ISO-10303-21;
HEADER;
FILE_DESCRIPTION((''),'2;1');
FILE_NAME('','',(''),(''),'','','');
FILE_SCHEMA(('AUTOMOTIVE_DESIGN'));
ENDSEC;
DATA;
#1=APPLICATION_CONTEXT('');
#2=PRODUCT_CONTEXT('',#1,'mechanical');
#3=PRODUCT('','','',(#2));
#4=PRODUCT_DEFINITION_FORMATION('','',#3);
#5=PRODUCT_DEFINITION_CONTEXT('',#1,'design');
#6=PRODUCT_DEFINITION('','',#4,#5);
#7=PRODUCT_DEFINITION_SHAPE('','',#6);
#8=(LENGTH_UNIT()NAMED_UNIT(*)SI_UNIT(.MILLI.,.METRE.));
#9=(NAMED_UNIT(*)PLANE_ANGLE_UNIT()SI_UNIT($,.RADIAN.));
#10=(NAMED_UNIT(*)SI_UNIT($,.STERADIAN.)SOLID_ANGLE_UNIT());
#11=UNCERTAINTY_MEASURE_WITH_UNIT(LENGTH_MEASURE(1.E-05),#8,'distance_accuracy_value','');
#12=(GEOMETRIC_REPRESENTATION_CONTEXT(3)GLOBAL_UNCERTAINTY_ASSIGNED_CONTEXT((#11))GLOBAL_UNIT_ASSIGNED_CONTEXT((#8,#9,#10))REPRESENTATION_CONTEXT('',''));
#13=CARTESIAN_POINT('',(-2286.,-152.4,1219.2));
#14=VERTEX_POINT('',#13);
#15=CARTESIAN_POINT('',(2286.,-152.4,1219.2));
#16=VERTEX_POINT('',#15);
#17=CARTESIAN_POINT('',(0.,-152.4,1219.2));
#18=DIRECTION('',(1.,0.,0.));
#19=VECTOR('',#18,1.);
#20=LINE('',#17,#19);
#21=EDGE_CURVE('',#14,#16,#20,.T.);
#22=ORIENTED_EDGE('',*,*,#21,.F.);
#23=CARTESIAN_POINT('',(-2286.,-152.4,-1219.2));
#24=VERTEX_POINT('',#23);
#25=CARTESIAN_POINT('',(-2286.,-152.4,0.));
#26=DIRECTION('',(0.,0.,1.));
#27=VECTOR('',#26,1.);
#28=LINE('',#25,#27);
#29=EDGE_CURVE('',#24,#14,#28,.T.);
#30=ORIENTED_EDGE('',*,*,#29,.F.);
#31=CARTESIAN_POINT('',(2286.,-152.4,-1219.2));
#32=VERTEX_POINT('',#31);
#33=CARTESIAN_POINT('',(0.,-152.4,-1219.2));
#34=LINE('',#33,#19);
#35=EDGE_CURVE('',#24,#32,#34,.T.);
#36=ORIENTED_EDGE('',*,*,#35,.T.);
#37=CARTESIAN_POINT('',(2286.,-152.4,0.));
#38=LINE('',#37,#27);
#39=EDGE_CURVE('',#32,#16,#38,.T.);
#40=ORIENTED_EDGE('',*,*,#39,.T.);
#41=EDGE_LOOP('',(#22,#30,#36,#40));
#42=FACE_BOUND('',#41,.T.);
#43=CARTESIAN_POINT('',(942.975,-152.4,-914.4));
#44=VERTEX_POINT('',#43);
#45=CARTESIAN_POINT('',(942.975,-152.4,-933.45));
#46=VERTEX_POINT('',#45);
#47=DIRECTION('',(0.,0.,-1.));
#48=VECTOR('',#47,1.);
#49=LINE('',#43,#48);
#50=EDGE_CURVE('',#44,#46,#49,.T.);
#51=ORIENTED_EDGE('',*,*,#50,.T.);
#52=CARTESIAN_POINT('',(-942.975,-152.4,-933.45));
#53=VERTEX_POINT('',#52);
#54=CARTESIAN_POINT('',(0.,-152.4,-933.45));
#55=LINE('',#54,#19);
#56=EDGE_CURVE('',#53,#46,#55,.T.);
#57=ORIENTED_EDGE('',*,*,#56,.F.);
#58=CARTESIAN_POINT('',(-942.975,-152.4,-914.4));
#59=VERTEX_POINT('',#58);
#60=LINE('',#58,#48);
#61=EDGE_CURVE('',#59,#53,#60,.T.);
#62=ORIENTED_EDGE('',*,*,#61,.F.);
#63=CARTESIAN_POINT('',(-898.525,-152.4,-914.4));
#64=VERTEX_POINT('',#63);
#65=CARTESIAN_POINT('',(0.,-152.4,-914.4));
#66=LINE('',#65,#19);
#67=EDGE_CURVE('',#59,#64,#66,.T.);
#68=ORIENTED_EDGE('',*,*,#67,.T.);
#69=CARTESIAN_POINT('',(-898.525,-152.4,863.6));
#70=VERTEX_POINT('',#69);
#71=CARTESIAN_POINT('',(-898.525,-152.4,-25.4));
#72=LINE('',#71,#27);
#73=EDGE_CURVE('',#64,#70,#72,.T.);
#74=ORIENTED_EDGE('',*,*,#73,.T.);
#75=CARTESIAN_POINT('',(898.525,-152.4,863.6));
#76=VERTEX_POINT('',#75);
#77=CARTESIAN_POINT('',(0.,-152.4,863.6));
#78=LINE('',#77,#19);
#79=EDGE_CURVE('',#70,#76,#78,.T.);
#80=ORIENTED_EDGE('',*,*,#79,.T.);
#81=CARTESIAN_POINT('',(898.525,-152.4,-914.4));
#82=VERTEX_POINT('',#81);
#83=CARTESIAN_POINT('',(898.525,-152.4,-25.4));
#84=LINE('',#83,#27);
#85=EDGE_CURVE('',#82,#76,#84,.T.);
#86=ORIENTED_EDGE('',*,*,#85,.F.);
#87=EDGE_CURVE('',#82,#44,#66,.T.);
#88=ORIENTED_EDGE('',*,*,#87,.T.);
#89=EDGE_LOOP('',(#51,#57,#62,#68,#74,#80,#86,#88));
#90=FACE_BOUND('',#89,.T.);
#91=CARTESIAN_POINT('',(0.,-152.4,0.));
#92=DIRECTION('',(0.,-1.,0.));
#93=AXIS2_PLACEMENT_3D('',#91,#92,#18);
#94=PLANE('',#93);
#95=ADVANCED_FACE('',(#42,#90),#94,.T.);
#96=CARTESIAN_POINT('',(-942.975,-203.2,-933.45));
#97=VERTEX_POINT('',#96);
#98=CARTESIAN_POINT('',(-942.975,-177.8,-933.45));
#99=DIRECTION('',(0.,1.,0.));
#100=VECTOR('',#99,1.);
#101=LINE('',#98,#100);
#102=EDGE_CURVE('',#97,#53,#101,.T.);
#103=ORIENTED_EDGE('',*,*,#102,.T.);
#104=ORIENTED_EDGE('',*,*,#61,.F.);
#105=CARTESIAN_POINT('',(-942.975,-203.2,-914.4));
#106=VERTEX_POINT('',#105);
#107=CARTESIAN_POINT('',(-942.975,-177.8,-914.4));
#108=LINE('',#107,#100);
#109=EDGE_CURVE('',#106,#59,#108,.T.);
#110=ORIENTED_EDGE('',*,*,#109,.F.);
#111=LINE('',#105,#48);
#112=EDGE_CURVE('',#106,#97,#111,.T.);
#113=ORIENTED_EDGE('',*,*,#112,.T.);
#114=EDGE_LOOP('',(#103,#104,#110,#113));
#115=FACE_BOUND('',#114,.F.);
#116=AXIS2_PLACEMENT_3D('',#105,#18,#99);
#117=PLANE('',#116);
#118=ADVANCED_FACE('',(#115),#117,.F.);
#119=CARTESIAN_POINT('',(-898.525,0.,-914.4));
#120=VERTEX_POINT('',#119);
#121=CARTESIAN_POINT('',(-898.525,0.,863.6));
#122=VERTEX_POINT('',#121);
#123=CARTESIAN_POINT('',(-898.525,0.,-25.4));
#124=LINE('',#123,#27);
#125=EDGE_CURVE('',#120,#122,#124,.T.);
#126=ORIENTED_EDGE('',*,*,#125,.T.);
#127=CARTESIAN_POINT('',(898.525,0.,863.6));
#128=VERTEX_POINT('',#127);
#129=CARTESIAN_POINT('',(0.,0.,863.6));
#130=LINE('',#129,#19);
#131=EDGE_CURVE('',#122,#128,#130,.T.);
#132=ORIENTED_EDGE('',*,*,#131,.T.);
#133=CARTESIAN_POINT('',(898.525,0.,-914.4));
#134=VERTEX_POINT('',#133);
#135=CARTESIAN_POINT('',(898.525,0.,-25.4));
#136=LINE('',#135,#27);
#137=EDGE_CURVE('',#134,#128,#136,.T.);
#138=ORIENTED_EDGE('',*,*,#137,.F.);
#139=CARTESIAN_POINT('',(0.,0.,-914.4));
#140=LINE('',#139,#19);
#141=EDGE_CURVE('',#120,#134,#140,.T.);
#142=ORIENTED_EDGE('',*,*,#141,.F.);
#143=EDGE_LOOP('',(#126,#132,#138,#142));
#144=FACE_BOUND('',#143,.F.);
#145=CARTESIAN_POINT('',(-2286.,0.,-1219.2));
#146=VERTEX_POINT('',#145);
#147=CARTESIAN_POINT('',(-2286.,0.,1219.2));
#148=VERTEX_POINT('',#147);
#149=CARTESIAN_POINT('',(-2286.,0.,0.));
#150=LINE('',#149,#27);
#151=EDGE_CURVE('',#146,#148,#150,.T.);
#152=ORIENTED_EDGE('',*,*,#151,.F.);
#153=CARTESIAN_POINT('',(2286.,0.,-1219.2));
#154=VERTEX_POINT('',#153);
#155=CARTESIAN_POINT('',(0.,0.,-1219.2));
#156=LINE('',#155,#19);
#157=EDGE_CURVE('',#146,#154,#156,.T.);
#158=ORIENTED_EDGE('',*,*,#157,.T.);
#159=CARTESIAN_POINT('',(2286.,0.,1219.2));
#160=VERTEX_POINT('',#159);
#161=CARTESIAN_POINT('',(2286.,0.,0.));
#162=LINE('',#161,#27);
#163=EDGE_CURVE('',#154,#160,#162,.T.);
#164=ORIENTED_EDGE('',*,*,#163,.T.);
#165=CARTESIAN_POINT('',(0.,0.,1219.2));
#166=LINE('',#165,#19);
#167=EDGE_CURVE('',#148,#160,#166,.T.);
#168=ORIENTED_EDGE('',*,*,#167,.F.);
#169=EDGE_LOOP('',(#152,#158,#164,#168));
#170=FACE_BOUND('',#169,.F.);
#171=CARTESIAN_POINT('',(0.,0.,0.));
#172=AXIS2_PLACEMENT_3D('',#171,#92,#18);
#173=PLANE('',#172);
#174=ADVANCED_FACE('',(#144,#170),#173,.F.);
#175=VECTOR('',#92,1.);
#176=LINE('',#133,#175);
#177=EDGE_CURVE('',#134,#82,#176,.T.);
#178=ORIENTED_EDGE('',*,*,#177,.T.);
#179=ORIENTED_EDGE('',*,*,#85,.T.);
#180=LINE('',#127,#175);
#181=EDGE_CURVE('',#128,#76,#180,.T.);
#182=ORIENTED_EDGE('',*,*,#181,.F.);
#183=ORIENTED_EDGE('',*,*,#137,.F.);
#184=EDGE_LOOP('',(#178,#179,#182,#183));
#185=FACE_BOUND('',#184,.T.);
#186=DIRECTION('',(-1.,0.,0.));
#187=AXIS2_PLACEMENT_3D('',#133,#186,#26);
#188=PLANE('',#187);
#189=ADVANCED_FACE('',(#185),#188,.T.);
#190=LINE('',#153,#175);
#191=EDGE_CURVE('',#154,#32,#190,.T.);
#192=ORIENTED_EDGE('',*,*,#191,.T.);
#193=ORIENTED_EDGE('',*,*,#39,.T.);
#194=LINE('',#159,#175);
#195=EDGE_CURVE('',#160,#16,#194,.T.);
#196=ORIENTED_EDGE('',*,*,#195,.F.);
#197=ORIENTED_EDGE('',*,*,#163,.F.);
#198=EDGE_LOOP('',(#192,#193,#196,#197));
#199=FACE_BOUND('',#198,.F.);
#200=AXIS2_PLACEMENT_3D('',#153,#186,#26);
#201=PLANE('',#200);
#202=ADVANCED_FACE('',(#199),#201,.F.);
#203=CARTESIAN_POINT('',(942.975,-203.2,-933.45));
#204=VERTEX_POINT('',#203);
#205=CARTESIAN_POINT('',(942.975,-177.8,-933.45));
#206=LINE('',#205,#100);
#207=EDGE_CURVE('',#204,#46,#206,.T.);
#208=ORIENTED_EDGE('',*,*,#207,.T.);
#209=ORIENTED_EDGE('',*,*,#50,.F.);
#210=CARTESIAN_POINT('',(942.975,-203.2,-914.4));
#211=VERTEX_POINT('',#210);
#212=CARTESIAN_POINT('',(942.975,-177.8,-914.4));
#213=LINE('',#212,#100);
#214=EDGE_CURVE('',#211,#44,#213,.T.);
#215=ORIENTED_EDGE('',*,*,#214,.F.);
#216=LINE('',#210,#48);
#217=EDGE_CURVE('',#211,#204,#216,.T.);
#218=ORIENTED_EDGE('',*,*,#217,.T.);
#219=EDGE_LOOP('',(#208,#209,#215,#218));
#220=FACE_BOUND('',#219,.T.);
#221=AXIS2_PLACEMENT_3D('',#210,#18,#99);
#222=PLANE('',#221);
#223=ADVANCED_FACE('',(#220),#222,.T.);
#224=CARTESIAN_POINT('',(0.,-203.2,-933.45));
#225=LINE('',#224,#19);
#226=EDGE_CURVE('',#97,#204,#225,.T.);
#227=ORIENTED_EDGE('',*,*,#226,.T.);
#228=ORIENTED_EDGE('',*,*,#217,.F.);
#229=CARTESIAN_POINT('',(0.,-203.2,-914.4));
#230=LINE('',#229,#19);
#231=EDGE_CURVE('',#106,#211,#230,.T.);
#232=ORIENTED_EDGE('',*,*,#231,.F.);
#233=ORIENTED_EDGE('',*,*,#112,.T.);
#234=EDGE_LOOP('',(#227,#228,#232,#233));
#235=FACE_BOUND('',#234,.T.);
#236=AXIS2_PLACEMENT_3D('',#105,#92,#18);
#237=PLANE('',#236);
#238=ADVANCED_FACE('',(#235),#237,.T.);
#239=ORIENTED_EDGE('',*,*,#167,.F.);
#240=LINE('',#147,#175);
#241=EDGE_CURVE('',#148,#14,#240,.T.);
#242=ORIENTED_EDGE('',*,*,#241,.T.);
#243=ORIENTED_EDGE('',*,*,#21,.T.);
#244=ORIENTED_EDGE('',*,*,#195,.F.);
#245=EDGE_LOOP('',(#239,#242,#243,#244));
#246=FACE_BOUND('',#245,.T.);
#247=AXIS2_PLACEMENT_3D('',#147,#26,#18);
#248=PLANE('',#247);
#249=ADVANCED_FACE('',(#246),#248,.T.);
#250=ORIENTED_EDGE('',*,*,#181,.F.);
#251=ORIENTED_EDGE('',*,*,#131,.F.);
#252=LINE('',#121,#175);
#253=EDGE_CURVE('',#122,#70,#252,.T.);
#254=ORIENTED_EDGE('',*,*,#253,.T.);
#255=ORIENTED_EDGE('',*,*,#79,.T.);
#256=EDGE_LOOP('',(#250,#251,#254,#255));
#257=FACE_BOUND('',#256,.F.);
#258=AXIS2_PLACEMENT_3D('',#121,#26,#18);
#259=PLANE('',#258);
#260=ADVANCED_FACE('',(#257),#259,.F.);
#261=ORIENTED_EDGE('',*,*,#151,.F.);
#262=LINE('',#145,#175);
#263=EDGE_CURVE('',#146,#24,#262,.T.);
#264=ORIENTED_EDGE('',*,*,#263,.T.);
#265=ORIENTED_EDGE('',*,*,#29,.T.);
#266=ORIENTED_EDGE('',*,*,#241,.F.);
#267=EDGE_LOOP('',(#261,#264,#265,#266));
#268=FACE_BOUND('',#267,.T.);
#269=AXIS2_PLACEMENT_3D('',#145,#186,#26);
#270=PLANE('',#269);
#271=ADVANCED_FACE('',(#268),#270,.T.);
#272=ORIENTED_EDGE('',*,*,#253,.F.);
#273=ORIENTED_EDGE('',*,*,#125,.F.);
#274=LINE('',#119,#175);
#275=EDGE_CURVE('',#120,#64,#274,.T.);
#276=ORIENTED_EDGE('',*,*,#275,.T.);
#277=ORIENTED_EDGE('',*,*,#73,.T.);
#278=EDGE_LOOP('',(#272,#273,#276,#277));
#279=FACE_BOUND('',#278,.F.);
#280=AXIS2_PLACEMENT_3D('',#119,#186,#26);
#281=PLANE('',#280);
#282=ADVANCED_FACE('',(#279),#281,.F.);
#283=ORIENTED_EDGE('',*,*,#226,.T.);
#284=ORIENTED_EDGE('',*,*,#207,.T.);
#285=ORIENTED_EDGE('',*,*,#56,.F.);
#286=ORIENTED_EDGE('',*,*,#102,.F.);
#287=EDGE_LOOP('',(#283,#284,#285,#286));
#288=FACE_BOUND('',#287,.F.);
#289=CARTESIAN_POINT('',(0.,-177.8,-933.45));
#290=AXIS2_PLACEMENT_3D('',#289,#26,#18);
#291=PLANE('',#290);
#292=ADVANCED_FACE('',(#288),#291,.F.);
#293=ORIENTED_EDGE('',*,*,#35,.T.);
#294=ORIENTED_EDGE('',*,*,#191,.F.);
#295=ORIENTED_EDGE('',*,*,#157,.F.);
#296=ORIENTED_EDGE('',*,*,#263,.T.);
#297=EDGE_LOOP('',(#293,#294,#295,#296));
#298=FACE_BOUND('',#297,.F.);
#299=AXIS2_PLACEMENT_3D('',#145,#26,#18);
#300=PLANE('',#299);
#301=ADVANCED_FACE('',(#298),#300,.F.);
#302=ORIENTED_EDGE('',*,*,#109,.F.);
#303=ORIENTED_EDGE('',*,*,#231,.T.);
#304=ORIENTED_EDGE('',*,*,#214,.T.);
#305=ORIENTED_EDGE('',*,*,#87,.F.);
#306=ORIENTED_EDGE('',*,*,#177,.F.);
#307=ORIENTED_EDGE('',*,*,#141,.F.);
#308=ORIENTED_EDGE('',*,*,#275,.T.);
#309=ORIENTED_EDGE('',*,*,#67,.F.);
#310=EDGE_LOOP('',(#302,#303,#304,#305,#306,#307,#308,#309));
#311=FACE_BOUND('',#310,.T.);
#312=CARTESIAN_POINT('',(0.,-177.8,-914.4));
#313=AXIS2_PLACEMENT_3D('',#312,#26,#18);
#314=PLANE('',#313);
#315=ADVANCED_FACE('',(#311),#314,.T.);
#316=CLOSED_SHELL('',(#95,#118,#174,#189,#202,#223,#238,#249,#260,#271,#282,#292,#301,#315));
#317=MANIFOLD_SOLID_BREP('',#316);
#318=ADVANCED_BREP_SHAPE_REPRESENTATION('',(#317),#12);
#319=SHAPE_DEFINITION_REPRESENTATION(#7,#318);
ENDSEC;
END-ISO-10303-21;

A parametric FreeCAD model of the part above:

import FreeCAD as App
import Part
import Sketcher
from FreeCAD import Vector
Q = App.Units.Quantity

doc = App.newDocument("Part")
body = doc.addObject("PartDesign::Body", "Body")

# Sketch on XZ plane
sketch1 = doc.addObject("Sketcher::SketchObject", "Sketch")
body.addObject(sketch1)
sketch1.AttachmentSupport = (doc.XZ_Plane, [""])
sketch1.MapMode = "FlatFace"
sketch1.addGeometry([
    Part.LineSegment(Vector(-2286, 1219, 0), Vector(-2286, -1219, 0)),  # 0
    Part.LineSegment(Vector(-2286, -1219, 0), Vector(2286, -1219, 0)),  # 1
    Part.LineSegment(Vector(2286, -1219, 0), Vector(2286, 1219, 0)),  # 2
    Part.LineSegment(Vector(2286, 1219, 0), Vector(-2286, 1219, 0)),  # 3
    Part.LineSegment(Vector(899, -914, 0), Vector(-899, -914, 0)),  # 4
    Part.LineSegment(Vector(-899, -914, 0), Vector(-899, 864, 0)),  # 5
    Part.LineSegment(Vector(-899, 864, 0), Vector(899, 864, 0)),  # 6
    Part.LineSegment(Vector(899, 864, 0), Vector(899, -914, 0)),  # 7
], False)
sketch1.addConstraint([
    Sketcher.Constraint("Coincident", 0, 2, 1, 1),
    Sketcher.Constraint("Coincident", 1, 2, 2, 1),
    Sketcher.Constraint("Coincident", 2, 2, 3, 1),
    Sketcher.Constraint("Coincident", 3, 2, 0, 1),
    Sketcher.Constraint("Coincident", 4, 2, 5, 1),
    Sketcher.Constraint("Coincident", 5, 2, 6, 1),
    Sketcher.Constraint("Coincident", 6, 2, 7, 1),
    Sketcher.Constraint("Coincident", 7, 2, 4, 1),
    Sketcher.Constraint("Vertical", 0),
    Sketcher.Constraint("Horizontal", 1),
    Sketcher.Constraint("Vertical", 2),
    Sketcher.Constraint("Horizontal", 3),
    Sketcher.Constraint("Horizontal", 4),
    Sketcher.Constraint("Vertical", 5),
    Sketcher.Constraint("Horizontal", 6),
    Sketcher.Constraint("Vertical", 7),
    Sketcher.Constraint("Symmetric", 0, 2, 2, 2, -1, 1),
    Sketcher.Constraint("DistanceX", 1, 1, 1, 2, Q("180 in")),
    Sketcher.Constraint("DistanceY", 0, 2, 0, 1, Q("96 in")),
    Sketcher.Constraint("DistanceY", 5, 1, 5, 2, Q("70 in")),
    Sketcher.Constraint("DistanceY", 4, 2, -1, 1, Q("36 in")),
    Sketcher.Constraint("DistanceX", 4, 2, 4, 1, Q("70.75 in")),
    Sketcher.Constraint("DistanceX", 4, 2, -1, 1, Q("35.375 in")),
])
pad1 = doc.addObject("PartDesign::Pad", "Pad")
body.addObject(pad1)
pad1.Profile = sketch1
pad1.Length = Q("6 in")

# Sketch on XY plane
sketch2 = doc.addObject("Sketcher::SketchObject", "Sketch001")
body.addObject(sketch2)
sketch2.AttachmentSupport = (doc.XY_Plane, [""])
sketch2.MapMode = "FlatFace"
sketch2.AttachmentOffset = App.Placement(Vector(0, 0, -36 * 25.4), App.Rotation())
sketch2.addGeometry([
    Part.LineSegment(Vector(-943, -152, 0), Vector(-943, -203, 0)),
    Part.LineSegment(Vector(-943, -203, 0), Vector(943, -203, 0)),
    Part.LineSegment(Vector(943, -203, 0), Vector(943, -152, 0)),
    Part.LineSegment(Vector(943, -152, 0), Vector(-943, -152, 0)),
], False)
sketch2.addConstraint([
    Sketcher.Constraint("Coincident", 0, 2, 1, 1),
    Sketcher.Constraint("Coincident", 1, 2, 2, 1),
    Sketcher.Constraint("Coincident", 2, 2, 3, 1),
    Sketcher.Constraint("Coincident", 3, 2, 0, 1),
    Sketcher.Constraint("Vertical", 0),
    Sketcher.Constraint("Horizontal", 1),
    Sketcher.Constraint("Vertical", 2),
    Sketcher.Constraint("Horizontal", 3),
    Sketcher.Constraint("DistanceY", 0, 2, 0, 1, Q("2 in")),
    Sketcher.Constraint("DistanceY", 0, 2, -1, 1, Q("8 in")),
    Sketcher.Constraint("DistanceX", 1, 1, 1, 2, Q("74.25 in")),
    Sketcher.Constraint("DistanceX", 0, 2, -1, 1, Q("37.125 in")),
])
pad2 = doc.addObject("PartDesign::Pad", "Pad001")
body.addObject(pad2)
pad2.Profile = sketch2
pad2.Length = Q("0.75 in")
pad2.Reversed = True

doc.recompute()
